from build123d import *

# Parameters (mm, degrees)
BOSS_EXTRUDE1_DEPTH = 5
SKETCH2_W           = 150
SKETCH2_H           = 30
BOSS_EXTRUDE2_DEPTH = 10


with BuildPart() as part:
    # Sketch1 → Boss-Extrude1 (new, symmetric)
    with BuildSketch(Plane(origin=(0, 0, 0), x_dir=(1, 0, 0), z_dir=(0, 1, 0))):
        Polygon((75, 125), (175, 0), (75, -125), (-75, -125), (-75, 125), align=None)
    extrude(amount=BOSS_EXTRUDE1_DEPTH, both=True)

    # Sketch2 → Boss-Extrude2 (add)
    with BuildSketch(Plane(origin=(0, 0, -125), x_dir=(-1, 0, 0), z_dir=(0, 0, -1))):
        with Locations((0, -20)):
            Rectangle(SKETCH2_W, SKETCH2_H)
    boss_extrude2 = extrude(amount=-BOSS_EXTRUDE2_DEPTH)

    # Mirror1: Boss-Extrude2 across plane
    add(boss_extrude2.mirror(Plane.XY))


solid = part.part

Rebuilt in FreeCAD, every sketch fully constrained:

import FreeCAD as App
import Part
import Sketcher

V = App.Vector
Q = App.Units.Quantity

doc = App.newDocument("Part")
body = doc.addObject("PartDesign::Body", "Body")

# Sketch on XZ plane
sketch1 = body.newObject("Sketcher::SketchObject", "Sketch")
sketch1.AttachmentSupport = (doc.getObject("XZ_Plane"), [""])
sketch1.MapMode = "FlatFace"
sketch1.addGeometry(Part.LineSegment(V(175, 0, 0), V(75, -125, 0)), False)
sketch1.addGeometry(Part.LineSegment(V(75, -125, 0), V(-75, -125, 0)), False)
sketch1.addGeometry(Part.LineSegment(V(-75, -125, 0), V(-75, 125, 0)), False)
sketch1.addGeometry(Part.LineSegment(V(-75, 125, 0), V(75, 125, 0)), False)
sketch1.addGeometry(Part.LineSegment(V(75, 125, 0), V(175, 0, 0)), False)
sketch1.addConstraint(Sketcher.Constraint("Coincident", 0, 2, 1, 1))
sketch1.addConstraint(Sketcher.Constraint("Coincident", 1, 2, 2, 1))
sketch1.addConstraint(Sketcher.Constraint("Coincident", 2, 2, 3, 1))
sketch1.addConstraint(Sketcher.Constraint("Coincident", 3, 2, 4, 1))
sketch1.addConstraint(Sketcher.Constraint("Coincident", 4, 2, 0, 1))
sketch1.addConstraint(Sketcher.Constraint("Horizontal", 1))
sketch1.addConstraint(Sketcher.Constraint("Vertical", 2))
sketch1.addConstraint(Sketcher.Constraint("Horizontal", 3))
sketch1.addConstraint(Sketcher.Constraint("Symmetric", 0, 2, 2, 2, -1, 1))
sketch1.addConstraint(Sketcher.Constraint("PointOnObject", 4, 2, -1))
sketch1.addConstraint(Sketcher.Constraint("Vertical", 0, 2, 3, 2))
sketch1.addConstraint(Sketcher.Constraint("DistanceX", 1, 2, 1, 1, Q("150 mm")))
sketch1.addConstraint(Sketcher.Constraint("DistanceY", 2, 1, 2, 2, Q("250 mm")))
sketch1.addConstraint(Sketcher.Constraint("DistanceX", -1, 1, 4, 2, Q("175 mm")))
pad1 = body.newObject("PartDesign::Pad", "Pad")
pad1.Profile = sketch1
pad1.Length = 10
pad1.Midplane = True

# Sketch on XY plane
sketch2 = body.newObject("Sketcher::SketchObject", "Sketch001")
sketch2.AttachmentSupport = (doc.getObject("XY_Plane"), [""])
sketch2.MapMode = "FlatFace"
sketch2.AttachmentOffset = App.Placement(V(0, 0, -125), App.Rotation())
sketch2.addGeometry(Part.LineSegment(V(75, -5, 0), V(75, -35, 0)), False)
sketch2.addGeometry(Part.LineSegment(V(75, -35, 0), V(-75, -35, 0)), False)
sketch2.addGeometry(Part.LineSegment(V(-75, -35, 0), V(-75, -5, 0)), False)
sketch2.addGeometry(Part.LineSegment(V(-75, -5, 0), V(75, -5, 0)), False)
sketch2.addConstraint(Sketcher.Constraint("Coincident", 0, 2, 1, 1))
sketch2.addConstraint(Sketcher.Constraint("Coincident", 1, 2, 2, 1))
sketch2.addConstraint(Sketcher.Constraint("Coincident", 2, 2, 3, 1))
sketch2.addConstraint(Sketcher.Constraint("Coincident", 3, 2, 0, 1))
sketch2.addConstraint(Sketcher.Constraint("Vertical", 0))
sketch2.addConstraint(Sketcher.Constraint("Horizontal", 1))
sketch2.addConstraint(Sketcher.Constraint("Vertical", 2))
sketch2.addConstraint(Sketcher.Constraint("Horizontal", 3))
sketch2.addConstraint(Sketcher.Constraint("DistanceX", 1, 2, 1, 1, Q("150 mm")))
sketch2.addConstraint(Sketcher.Constraint("DistanceY", 0, 2, 0, 1, Q("30 mm")))
sketch2.addConstraint(Sketcher.Constraint("DistanceX", -1, 1, 0, 2, Q("75 mm")))
sketch2.addConstraint(Sketcher.Constraint("DistanceY", 0, 2, -1, 1, Q("35 mm")))
pad2 = body.newObject("PartDesign::Pad", "Pad001")
pad2.Profile = sketch2
pad2.Length = 10
doc.recompute()

mirrored = body.newObject("PartDesign::Mirrored", "Mirrored")
mirrored.Originals = [pad2]
mirrored.MirrorPlane = (doc.getObject("XY_Plane"), [""])
body.Tip = mirrored

doc.recompute()
